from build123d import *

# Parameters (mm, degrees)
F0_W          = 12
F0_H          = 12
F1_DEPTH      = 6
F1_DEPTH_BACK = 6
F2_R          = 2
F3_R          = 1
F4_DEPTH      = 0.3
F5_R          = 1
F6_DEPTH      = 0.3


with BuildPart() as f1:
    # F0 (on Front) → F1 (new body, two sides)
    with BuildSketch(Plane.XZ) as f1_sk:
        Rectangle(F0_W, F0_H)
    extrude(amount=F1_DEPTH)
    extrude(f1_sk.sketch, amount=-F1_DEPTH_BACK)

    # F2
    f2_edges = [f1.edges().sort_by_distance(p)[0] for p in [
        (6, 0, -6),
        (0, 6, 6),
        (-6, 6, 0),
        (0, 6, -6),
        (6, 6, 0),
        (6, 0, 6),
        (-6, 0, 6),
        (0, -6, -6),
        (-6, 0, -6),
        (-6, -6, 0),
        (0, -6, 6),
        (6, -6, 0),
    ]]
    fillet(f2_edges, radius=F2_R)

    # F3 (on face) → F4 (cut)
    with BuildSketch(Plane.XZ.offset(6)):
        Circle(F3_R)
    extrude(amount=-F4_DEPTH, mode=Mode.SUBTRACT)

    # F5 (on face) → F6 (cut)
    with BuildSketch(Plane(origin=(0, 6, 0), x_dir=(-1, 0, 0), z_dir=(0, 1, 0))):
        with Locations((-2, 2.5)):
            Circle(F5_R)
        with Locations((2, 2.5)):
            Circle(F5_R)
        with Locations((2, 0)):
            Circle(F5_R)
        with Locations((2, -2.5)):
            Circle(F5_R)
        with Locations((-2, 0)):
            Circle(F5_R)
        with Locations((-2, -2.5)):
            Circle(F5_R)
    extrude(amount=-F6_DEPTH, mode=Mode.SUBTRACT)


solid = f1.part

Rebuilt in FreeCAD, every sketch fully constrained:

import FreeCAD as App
import Part
import Sketcher
Q = App.Units.Quantity


def add_polygon(sketch, points):
    """Adds a closed chain of lines whose ends are joined by coincident constraints."""
    first, n = sketch.GeometryCount, len(points)
    for a, b in zip(points, points[1:] + points[:1]):
        sketch.addGeometry(Part.LineSegment(App.Vector(*a, 0), App.Vector(*b, 0)), False)
    for i in range(n):
        sketch.addConstraint(Sketcher.Constraint("Coincident", first + i, 2, first + (i + 1) % n, 1))

doc = App.newDocument("Part")
body = doc.addObject("PartDesign::Body", "Body")

sketch1 = body.newObject("Sketcher::SketchObject", "Sketch")
sketch1.AttachmentSupport = (doc.getObject("XZ_Plane"), [""])
sketch1.MapMode = "FlatFace"
add_polygon(sketch1, [(-6, 6), (-6, -6), (6, -6), (6, 6)])
sketch1.addConstraint([
    Sketcher.Constraint("Vertical", 0),
    Sketcher.Constraint("Horizontal", 1),
    Sketcher.Constraint("Vertical", 2),
    Sketcher.Constraint("Horizontal", 3),
    Sketcher.Constraint("Symmetric", 0, 2, 2, 2, -1, 1),
    Sketcher.Constraint("Equal", 3, 0),
    Sketcher.Constraint("DistanceX", 1, 1, 1, 2, Q("12 mm")),
])
pad1 = body.newObject("PartDesign::Pad", "Pad")
pad1.Profile = sketch1
pad1.Type = "TwoLengths"
pad1.Length = 6
pad1.Length2 = 6
doc.recompute()

fillet = body.newObject("PartDesign::Fillet", "Fillet")
fillet.Base = (pad1, ["Edge1"])
fillet.UseAllEdges = True
fillet.Radius = 2

sketch2 = body.newObject("Sketcher::SketchObject", "Sketch001")
sketch2.AttachmentSupport = (doc.getObject("XZ_Plane"), [""])
sketch2.MapMode = "FlatFace"
sketch2.AttachmentOffset = App.Placement(App.Vector(0, 0, 6), App.Rotation())
sketch2.addGeometry(Part.Circle(App.Vector(0, 0, 0), App.Vector(0, 0, 1), 1), False)
sketch2.addConstraint([
    Sketcher.Constraint("Coincident", 0, 3, -1, 1),
    Sketcher.Constraint("Diameter", 0, Q("2 mm")),
])
pocket1 = body.newObject("PartDesign::Pocket", "Pocket")
pocket1.Profile = sketch2
pocket1.Length = 0.3

sketch3 = body.newObject("Sketcher::SketchObject", "Sketch002")
sketch3.AttachmentSupport = (doc.getObject("XZ_Plane"), [""])
sketch3.MapMode = "FlatFace"
sketch3.AttachmentOffset = App.Placement(App.Vector(0, 0, -6), App.Rotation())
sketch3.addGeometry([
    Part.Circle(App.Vector(2, 2.5, 0), App.Vector(0, 0, 1), 1),
    Part.Circle(App.Vector(-2, 2.5, 0), App.Vector(0, 0, 1), 1),
    Part.Circle(App.Vector(-2, 0, 0), App.Vector(0, 0, 1), 1),
    Part.Circle(App.Vector(-2, -2.5, 0), App.Vector(0, 0, 1), 1),
    Part.Circle(App.Vector(2, 0, 0), App.Vector(0, 0, 1), 1),
    Part.Circle(App.Vector(2, -2.5, 0), App.Vector(0, 0, 1), 1),
], False)
sketch3.addConstraint([
    Sketcher.Constraint("Equal", 0, 1),
    Sketcher.Constraint("Equal", 1, 2),
    Sketcher.Constraint("Equal", 2, 3),
    Sketcher.Constraint("Equal", 3, 4),
    Sketcher.Constraint("Equal", 4, 5),
    Sketcher.Constraint("Symmetric", 0, 3, 3, 3, -1, 1),
    Sketcher.Constraint("Symmetric", 2, 3, 4, 3, -1, 1),
    Sketcher.Constraint("Symmetric", 1, 3, 5, 3, -1, 1),
    Sketcher.Constraint("Symmetric", 0, 3, 1, 3, -2),
    Sketcher.Constraint("PointOnObject", 2, 3, -1),
    Sketcher.Constraint("Vertical", 1, 3, 2, 3),
    Sketcher.Constraint("Diameter", 0, Q("2 mm")),
    Sketcher.Constraint("DistanceX", -1, 1, 0, 3, Q("2 mm")),
    Sketcher.Constraint("DistanceY", 3, 3, 1, 3, Q("5 mm")),
])
pocket2 = body.newObject("PartDesign::Pocket", "Pocket001")
pocket2.Profile = sketch3
pocket2.Length = 0.3
pocket2.Reversed = True

doc.recompute()
